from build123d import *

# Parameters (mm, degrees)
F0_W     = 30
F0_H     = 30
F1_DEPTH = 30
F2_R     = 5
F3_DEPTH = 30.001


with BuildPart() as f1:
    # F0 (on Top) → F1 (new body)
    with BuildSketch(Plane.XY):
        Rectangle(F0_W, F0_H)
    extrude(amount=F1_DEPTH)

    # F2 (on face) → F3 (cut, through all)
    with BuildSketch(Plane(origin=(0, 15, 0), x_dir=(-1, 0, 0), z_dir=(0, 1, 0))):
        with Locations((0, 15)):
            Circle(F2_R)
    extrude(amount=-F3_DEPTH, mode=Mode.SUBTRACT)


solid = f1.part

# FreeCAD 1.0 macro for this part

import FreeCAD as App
import Part
import Sketcher

V = App.Vector

doc = App.newDocument("Part")
body = doc.addObject("PartDesign::Body", "Body")

# Sketch on XY plane
sketch1 = body.newObject("Sketcher::SketchObject", "Sketch")
sketch1.AttachmentSupport = (doc.getObject("XY_Plane"), [""])
sketch1.MapMode = "FlatFace"
sketch1.addGeometry(Part.LineSegment(V(-15, 15, 0), V(-15, -15, 0)), False)
sketch1.addGeometry(Part.LineSegment(V(-15, -15, 0), V(15, -15, 0)), False)
sketch1.addGeometry(Part.LineSegment(V(15, -15, 0), V(15, 15, 0)), False)
sketch1.addGeometry(Part.LineSegment(V(15, 15, 0), V(-15, 15, 0)), False)
sketch1.addConstraint(Sketcher.Constraint("Coincident", 0, 2, 1, 1))
sketch1.addConstraint(Sketcher.Constraint("Coincident", 1, 2, 2, 1))
sketch1.addConstraint(Sketcher.Constraint("Coincident", 2, 2, 3, 1))
sketch1.addConstraint(Sketcher.Constraint("Coincident", 3, 2, 0, 1))
sketch1.addConstraint(Sketcher.Constraint("Vertical", 0))
sketch1.addConstraint(Sketcher.Constraint("Horizontal", 1))
sketch1.addConstraint(Sketcher.Constraint("Vertical", 2))
sketch1.addConstraint(Sketcher.Constraint("Horizontal", 3))
sketch1.addConstraint(Sketcher.Constraint("Symmetric", 0, 2, 2, 2, -1, 1))
sketch1.addConstraint(Sketcher.Constraint("Equal", 3, 0))
sketch1.addConstraint(Sketcher.Constraint("DistanceX", 1, 1, 1, 2, 30.0))
pad1 = body.newObject("PartDesign::Pad", "Pad")
pad1.Profile = sketch1
pad1.Length = 30

# Sketch on XZ plane
sketch2 = body.newObject("Sketcher::SketchObject", "Sketch001")
sketch2.AttachmentSupport = (doc.getObject("XZ_Plane"), [""])
sketch2.MapMode = "FlatFace"
sketch2.AttachmentOffset = App.Placement(V(0, 0, -15), App.Rotation())
sketch2.addGeometry(Part.Circle(V(0, 15, 0), V(0, 0, 1), 5), False)
sketch2.addConstraint(Sketcher.Constraint("PointOnObject", 0, 3, -2))
sketch2.addConstraint(Sketcher.Constraint("Diameter", 0, 10.0))
sketch2.addConstraint(Sketcher.Constraint("DistanceY", -1, 1, 0, 3, 15.0))
pocket1 = body.newObject("PartDesign::Pocket", "Pocket")
pocket1.Profile = sketch2
pocket1.Type = "ThroughAll"
pocket1.Reversed = True

doc.recompute()
